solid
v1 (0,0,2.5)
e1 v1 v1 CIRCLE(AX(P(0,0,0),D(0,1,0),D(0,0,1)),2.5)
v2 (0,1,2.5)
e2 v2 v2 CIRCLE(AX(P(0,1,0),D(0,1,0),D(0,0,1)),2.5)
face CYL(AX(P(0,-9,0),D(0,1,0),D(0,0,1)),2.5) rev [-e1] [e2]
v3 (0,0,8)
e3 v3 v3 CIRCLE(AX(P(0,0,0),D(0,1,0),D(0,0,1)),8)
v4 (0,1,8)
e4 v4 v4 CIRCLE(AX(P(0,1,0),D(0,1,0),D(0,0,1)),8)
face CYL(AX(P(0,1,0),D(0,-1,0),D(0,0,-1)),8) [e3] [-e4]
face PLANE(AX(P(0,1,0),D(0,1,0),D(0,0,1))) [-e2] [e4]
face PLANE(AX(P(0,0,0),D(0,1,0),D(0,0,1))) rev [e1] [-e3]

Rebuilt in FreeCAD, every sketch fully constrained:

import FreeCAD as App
import Part
import Sketcher
from FreeCAD import Vector
Q = App.Units.Quantity

doc = App.newDocument("Part")
body = doc.addObject("PartDesign::Body", "Body")

sketch1 = doc.addObject("Sketcher::SketchObject", "Sketch")
body.addObject(sketch1)
sketch1.AttachmentSupport = (doc.XZ_Plane, [""])
sketch1.MapMode = "FlatFace"
sketch1.addGeometry(Part.Circle(Vector(0, 0, 0), Vector(0, 0, 1), 8), False)
sketch1.addGeometry(Part.Circle(Vector(0, 0, 0), Vector(0, 0, 1), 2.1), False)
sketch1.addConstraint(Sketcher.Constraint("Coincident", 0, 3, -1, 1))
sketch1.addConstraint(Sketcher.Constraint("Coincident", 1, 3, -1, 1))
sketch1.addConstraint(Sketcher.Constraint("Diameter", 0, Q("16 mm")))
sketch1.addConstraint(Sketcher.Constraint("Diameter", 1, Q("4.25 mm")))
pad1 = doc.addObject("PartDesign::Pad", "Pad")
body.addObject(pad1)
pad1.Profile = sketch1
pad1.Length = 1
pad1.Reversed = True

sketch2 = doc.addObject("Sketcher::SketchObject", "Sketch001")
body.addObject(sketch2)
sketch2.AttachmentSupport = (doc.XZ_Plane, [""])
sketch2.MapMode = "FlatFace"
sketch2.AttachmentOffset = App.Placement(Vector(0, 0, -1), App.Rotation())
sketch2.addGeometry(Part.Circle(Vector(0, 0, 0), Vector(0, 0, 1), 2.5), False)
sketch2.addConstraint(Sketcher.Constraint("Coincident", 0, 3, -1, 1))
sketch2.addConstraint(Sketcher.Constraint("Diameter", 0, Q("5 mm")))
pocket1 = doc.addObject("PartDesign::Pocket", "Pocket")
body.addObject(pocket1)
pocket1.Profile = sketch2
pocket1.Length = 10
pocket1.Reversed = True

doc.recompute()
